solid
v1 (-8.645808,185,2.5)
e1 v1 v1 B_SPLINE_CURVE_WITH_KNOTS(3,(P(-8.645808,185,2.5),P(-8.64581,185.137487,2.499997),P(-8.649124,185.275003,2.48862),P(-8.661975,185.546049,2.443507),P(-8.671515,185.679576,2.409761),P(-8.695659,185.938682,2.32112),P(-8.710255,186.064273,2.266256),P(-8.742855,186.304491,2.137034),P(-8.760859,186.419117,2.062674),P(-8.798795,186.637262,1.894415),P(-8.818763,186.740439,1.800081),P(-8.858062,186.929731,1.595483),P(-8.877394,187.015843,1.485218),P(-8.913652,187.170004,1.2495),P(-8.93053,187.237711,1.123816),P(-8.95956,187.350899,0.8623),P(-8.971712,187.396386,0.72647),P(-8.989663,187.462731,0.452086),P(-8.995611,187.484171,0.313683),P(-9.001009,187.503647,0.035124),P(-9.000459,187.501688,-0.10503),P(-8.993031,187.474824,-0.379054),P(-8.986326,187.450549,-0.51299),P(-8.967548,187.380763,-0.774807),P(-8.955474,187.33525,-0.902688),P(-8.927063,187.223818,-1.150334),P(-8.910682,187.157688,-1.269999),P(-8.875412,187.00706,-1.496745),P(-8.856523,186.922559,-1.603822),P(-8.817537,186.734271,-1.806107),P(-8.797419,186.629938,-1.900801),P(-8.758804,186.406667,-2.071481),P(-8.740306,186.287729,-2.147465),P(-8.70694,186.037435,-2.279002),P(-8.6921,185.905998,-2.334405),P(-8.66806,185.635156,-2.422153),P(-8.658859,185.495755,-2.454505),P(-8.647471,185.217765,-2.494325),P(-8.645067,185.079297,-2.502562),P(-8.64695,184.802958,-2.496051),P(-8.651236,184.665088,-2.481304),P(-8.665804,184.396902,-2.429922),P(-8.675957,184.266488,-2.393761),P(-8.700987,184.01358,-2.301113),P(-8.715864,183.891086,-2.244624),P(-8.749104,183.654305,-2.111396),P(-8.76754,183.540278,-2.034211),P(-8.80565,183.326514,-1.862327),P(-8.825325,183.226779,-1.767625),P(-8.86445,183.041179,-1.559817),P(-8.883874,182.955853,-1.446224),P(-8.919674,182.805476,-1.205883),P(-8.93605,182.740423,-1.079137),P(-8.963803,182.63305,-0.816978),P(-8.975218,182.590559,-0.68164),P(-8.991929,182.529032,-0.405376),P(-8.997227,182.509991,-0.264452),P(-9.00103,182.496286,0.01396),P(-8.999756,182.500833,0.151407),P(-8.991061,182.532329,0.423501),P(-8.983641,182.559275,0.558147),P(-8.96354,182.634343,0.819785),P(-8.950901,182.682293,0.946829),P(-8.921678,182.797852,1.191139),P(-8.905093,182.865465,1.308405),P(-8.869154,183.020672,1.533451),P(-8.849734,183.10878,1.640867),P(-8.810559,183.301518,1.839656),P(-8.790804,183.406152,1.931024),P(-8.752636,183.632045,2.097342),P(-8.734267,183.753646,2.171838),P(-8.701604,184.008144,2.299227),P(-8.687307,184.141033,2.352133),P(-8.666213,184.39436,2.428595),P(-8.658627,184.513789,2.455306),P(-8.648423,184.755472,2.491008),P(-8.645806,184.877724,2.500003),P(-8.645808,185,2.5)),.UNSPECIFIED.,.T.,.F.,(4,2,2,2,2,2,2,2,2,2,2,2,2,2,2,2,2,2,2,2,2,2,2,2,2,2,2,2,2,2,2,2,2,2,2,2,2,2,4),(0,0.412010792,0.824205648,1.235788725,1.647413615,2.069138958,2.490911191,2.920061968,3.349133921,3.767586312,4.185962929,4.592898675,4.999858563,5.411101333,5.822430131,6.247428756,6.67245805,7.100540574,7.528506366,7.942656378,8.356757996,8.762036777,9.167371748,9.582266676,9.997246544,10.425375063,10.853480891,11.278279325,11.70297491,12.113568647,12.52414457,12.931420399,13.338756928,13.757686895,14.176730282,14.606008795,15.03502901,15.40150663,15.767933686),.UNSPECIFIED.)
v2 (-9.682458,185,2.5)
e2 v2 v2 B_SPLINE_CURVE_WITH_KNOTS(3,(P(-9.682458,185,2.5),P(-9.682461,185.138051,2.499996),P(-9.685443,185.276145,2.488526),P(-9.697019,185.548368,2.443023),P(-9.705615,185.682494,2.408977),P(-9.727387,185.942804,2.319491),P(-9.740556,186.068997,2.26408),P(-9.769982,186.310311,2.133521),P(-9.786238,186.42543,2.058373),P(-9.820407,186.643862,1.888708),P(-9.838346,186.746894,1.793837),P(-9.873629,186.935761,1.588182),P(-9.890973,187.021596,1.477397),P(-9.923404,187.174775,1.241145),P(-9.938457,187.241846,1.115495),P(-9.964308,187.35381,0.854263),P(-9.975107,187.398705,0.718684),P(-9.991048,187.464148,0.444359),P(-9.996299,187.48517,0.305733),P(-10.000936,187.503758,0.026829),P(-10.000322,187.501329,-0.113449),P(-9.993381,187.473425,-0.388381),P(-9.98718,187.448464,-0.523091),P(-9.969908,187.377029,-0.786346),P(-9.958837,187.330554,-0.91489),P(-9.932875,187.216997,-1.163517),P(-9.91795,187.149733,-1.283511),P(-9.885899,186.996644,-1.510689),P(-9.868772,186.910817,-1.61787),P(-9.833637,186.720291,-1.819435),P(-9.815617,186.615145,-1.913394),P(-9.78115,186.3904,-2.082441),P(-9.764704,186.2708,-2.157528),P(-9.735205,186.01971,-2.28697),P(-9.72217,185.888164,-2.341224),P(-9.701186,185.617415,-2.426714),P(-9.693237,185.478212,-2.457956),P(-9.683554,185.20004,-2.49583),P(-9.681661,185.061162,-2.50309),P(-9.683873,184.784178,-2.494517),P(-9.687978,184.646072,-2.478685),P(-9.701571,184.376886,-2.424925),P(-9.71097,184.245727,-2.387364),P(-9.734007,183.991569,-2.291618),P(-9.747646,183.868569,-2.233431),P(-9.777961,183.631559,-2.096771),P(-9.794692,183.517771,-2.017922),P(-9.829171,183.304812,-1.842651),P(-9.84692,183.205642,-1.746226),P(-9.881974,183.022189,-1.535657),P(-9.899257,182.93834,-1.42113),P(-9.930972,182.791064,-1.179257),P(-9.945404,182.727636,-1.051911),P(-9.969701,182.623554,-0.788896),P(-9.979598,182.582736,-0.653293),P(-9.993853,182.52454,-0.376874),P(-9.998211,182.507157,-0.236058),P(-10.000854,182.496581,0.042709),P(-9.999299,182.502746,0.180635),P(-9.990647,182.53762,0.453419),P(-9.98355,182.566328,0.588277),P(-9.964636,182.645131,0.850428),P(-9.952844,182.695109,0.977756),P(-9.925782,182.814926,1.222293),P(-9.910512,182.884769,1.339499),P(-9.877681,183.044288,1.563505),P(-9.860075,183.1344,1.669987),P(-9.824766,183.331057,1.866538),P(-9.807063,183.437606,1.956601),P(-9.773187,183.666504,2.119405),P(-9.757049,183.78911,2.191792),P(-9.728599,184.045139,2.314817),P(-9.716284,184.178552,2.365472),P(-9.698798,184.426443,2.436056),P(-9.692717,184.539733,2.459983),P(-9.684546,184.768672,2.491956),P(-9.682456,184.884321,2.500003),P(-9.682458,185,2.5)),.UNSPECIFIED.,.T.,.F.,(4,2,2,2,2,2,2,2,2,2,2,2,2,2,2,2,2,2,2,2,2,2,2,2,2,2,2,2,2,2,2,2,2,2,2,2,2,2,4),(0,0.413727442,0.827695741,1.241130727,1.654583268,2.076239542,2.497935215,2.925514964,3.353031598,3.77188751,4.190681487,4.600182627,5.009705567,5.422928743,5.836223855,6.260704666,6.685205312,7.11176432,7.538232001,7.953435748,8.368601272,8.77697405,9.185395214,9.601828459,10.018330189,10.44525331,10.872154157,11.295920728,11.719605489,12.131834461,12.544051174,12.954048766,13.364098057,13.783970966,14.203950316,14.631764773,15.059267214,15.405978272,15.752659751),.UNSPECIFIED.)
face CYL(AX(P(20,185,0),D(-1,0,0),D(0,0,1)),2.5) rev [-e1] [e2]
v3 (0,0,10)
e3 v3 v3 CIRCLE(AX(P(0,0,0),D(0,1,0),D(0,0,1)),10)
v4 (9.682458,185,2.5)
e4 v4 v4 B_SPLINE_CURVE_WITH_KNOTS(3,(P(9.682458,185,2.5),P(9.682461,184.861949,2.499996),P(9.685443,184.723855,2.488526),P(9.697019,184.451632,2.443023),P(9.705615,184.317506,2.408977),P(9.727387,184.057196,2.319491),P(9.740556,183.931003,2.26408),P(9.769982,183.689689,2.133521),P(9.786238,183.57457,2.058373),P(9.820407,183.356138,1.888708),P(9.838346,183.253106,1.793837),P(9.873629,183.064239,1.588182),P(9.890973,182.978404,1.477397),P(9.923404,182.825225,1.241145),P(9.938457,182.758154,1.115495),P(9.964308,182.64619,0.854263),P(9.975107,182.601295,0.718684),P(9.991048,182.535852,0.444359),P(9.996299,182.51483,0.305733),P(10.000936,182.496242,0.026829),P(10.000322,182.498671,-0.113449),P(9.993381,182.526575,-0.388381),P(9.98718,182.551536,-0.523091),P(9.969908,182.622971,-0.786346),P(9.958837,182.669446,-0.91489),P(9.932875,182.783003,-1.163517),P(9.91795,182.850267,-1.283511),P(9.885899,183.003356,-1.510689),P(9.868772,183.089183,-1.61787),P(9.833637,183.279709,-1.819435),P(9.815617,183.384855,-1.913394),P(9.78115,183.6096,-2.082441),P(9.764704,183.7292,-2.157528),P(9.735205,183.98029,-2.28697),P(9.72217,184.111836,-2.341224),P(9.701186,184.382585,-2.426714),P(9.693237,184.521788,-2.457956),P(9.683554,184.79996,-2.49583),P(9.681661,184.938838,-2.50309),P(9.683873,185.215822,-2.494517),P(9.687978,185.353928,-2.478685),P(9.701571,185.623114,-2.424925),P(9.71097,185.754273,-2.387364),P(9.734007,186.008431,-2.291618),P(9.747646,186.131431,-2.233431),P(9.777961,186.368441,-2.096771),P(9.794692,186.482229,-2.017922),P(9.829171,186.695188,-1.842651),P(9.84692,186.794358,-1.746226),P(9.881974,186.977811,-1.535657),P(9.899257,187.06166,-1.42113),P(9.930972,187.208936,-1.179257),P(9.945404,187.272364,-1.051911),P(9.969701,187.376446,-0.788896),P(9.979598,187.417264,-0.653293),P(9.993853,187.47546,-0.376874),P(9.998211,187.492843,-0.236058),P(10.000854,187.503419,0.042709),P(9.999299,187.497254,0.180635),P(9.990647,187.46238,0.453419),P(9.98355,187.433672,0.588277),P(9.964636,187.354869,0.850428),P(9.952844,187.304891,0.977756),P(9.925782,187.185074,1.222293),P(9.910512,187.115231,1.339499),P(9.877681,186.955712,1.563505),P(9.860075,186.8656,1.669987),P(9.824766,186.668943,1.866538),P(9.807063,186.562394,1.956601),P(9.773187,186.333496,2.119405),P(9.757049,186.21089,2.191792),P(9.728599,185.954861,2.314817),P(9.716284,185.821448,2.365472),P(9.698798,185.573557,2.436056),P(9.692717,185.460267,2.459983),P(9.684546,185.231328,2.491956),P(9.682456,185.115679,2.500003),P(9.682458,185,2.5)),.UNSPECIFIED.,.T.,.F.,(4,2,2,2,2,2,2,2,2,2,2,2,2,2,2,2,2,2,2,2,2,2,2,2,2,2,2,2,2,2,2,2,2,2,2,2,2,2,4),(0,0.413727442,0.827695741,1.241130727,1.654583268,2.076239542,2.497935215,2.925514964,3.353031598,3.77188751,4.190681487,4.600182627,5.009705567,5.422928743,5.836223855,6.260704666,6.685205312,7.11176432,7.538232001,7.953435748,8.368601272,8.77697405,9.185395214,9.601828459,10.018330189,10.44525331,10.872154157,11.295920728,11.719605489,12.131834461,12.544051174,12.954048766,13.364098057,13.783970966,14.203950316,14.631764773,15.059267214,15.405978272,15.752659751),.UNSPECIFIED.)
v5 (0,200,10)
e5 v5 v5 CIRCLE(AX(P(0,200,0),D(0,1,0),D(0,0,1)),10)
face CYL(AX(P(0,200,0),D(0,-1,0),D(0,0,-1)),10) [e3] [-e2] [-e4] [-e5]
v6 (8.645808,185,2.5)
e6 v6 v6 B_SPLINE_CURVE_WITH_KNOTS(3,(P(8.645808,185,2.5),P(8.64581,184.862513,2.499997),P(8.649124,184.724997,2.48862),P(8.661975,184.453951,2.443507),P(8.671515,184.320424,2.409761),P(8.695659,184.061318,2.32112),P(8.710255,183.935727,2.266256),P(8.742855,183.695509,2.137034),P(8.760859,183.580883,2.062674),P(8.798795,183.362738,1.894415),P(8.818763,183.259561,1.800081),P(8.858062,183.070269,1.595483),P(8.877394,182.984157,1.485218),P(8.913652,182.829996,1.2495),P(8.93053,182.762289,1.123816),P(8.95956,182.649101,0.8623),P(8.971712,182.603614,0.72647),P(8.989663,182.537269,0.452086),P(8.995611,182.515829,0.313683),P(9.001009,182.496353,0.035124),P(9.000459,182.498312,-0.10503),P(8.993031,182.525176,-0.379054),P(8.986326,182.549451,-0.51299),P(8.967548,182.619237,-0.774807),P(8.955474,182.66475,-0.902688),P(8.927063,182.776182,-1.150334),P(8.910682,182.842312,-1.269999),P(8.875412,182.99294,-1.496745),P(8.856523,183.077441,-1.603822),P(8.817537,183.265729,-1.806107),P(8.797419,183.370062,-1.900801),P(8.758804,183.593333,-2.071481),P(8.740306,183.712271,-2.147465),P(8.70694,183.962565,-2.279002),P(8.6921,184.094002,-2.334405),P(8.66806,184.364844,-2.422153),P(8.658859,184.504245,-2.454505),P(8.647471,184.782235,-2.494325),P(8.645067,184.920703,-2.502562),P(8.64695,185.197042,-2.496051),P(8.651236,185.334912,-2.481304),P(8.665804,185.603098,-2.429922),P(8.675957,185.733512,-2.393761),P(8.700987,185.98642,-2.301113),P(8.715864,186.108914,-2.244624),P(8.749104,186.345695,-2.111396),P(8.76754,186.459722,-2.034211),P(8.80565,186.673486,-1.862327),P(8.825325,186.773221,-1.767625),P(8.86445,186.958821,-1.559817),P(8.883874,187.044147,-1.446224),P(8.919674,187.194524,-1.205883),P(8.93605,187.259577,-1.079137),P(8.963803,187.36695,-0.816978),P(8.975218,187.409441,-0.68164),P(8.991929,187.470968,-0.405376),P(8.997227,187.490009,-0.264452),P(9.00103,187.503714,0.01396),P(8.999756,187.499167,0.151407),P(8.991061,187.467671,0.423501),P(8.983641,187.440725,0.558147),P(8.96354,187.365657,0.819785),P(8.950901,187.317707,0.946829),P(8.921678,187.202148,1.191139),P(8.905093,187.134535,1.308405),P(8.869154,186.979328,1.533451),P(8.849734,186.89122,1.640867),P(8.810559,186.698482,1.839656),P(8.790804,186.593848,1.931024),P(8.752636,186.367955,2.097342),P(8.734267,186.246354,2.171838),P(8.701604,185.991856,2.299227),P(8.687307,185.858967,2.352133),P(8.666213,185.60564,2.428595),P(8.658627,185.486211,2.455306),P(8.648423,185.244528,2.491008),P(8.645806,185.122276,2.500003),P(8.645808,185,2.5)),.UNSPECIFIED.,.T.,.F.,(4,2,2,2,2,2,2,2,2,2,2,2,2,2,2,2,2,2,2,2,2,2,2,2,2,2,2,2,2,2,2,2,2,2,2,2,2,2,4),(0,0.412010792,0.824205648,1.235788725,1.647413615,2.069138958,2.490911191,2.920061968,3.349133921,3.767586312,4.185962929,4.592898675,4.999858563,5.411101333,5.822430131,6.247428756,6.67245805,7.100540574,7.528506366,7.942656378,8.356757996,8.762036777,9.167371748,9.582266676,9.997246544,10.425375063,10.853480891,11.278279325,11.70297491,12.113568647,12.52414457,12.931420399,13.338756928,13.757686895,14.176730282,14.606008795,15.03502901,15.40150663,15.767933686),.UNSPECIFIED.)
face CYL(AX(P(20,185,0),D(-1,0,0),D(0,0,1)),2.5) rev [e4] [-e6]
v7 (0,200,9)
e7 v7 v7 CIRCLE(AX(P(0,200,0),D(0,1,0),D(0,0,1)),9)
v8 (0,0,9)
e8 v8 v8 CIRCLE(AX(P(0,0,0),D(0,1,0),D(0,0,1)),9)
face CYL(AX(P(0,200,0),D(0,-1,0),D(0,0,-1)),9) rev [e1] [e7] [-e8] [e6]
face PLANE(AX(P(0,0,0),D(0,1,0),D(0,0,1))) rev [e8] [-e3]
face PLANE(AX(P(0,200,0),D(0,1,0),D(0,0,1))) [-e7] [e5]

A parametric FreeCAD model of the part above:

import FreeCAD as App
import Part
import Sketcher
from FreeCAD import Vector

doc = App.newDocument("Part")
body = doc.addObject("PartDesign::Body", "Body")

sketch1 = body.newObject("Sketcher::SketchObject", "Sketch")
sketch1.AttachmentSupport = (doc.getObject("XZ_Plane"), [""])
sketch1.MapMode = "FlatFace"
sketch1.addGeometry([
    Part.Circle(Vector(0, 0, 0), Vector(0, 0, 1), 10),
    Part.Circle(Vector(0, 0, 0), Vector(0, 0, 1), 9),
], False)
sketch1.addConstraint([
    Sketcher.Constraint("Coincident", 0, 3, -1, 1),
    Sketcher.Constraint("Coincident", 1, 3, -1, 1),
    Sketcher.Constraint("Diameter", 0, 20.0),
    Sketcher.Constraint("Diameter", 1, 18.0),
])
pad1 = body.newObject("PartDesign::Pad", "Pad")
pad1.Profile = sketch1
pad1.Length = 200
pad1.Reversed = True

sketch2 = body.newObject("Sketcher::SketchObject", "Sketch001")
sketch2.AttachmentSupport = (doc.getObject("YZ_Plane"), [""])
sketch2.MapMode = "FlatFace"
sketch2.addGeometry(Part.Circle(Vector(185, 0, 0), Vector(0, 0, 1), 2.5), False)
sketch2.addConstraint([
    Sketcher.Constraint("PointOnObject", 0, 3, -1),
    Sketcher.Constraint("Diameter", 0, 5.0),
    Sketcher.Constraint("DistanceX", -1, 1, 0, 3, 185.0),
])
pocket1 = body.newObject("PartDesign::Pocket", "Pocket")
pocket1.Profile = sketch2
pocket1.Type = "ThroughAll"
pocket1.Midplane = True

doc.recompute()
